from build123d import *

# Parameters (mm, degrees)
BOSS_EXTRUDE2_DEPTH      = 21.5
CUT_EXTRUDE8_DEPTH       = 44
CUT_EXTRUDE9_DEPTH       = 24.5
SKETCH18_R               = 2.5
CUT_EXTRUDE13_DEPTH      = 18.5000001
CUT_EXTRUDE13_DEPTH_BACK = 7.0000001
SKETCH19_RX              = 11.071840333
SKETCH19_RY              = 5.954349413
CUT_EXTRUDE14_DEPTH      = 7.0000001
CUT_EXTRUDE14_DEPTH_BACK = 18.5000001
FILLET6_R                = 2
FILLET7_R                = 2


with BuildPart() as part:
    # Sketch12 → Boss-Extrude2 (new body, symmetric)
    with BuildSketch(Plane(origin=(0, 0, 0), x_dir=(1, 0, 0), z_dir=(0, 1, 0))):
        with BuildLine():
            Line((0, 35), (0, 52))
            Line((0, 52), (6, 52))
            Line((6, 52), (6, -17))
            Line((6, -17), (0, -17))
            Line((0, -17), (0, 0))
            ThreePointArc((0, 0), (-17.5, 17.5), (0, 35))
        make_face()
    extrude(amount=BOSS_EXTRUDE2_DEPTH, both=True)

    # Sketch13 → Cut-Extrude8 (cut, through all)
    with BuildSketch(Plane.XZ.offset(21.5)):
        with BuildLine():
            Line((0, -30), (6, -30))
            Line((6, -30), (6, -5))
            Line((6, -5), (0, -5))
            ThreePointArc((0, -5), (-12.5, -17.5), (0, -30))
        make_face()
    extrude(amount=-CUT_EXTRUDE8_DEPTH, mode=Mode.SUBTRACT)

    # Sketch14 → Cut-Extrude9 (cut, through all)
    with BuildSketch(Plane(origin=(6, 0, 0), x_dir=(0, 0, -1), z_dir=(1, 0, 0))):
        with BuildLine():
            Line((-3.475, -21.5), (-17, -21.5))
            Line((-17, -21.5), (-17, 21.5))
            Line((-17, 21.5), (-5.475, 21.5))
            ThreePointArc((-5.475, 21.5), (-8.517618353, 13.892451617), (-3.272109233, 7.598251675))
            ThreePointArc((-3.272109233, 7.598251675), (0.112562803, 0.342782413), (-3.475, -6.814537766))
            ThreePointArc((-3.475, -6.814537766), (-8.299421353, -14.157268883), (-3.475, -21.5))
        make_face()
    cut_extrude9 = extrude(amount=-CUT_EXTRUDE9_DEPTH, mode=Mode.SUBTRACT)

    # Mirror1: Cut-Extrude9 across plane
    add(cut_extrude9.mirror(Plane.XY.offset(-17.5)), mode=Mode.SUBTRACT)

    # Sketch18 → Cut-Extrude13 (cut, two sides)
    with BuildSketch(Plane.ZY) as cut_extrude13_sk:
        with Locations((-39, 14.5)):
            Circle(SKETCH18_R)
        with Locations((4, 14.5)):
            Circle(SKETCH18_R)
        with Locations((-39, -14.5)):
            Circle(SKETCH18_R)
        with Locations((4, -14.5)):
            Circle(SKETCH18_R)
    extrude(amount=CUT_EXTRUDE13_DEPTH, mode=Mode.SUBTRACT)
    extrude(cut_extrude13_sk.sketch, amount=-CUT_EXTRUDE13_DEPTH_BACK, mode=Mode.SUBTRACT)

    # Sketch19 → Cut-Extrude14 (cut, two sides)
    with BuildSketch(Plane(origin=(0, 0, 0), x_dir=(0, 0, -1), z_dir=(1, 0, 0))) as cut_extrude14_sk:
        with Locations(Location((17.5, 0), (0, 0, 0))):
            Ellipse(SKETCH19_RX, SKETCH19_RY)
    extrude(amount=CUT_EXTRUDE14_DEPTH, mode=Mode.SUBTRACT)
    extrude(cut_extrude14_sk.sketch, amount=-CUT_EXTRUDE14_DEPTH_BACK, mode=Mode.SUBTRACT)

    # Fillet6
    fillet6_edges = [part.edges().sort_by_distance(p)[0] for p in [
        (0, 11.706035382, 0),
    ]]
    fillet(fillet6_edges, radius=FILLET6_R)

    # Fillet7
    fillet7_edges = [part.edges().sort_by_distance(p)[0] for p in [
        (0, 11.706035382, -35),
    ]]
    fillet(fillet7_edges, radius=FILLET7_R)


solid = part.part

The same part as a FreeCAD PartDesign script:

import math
import FreeCAD as App
import Part
import Sketcher
Q = App.Units.Quantity


def edges_at(feature, points):
    """Names of the edges that pass closest to the given points."""
    edges = feature.Shape.Edges
    near = lambda p: min(range(len(edges)), key=lambda i: edges[i].distToShape(Part.Vertex(*p))[0])
    return sorted({f"Edge{near(p) + 1}" for p in points})

doc = App.newDocument("Part")
body = doc.addObject("PartDesign::Body", "Body")

sketch1 = doc.addObject("Sketcher::SketchObject", "Sketch")
body.addObject(sketch1)
sketch1.AttachmentSupport = (doc.XZ_Plane, [""])
sketch1.MapMode = "FlatFace"
sketch1.addGeometry([
    Part.LineSegment(App.Vector(0, -52, 0), App.Vector(0, -35, 0)),
    Part.ArcOfCircle(Part.Circle(App.Vector(0, -18, 0), App.Vector(0, 0, 1), 18), math.radians(90), math.radians(270)),
    Part.LineSegment(App.Vector(0, 0, 0), App.Vector(0, 17, 0)),
    Part.LineSegment(App.Vector(0, 17, 0), App.Vector(6, 17, 0)),
    Part.LineSegment(App.Vector(6, 17, 0), App.Vector(6, -52, 0)),
    Part.LineSegment(App.Vector(6, -52, 0), App.Vector(0, -52, 0)),
], False)
sketch1.addConstraint([
    Sketcher.Constraint("Coincident", 0, 2, 1, 2),
    Sketcher.Constraint("Coincident", 1, 1, 2, 1),
    Sketcher.Constraint("Coincident", 2, 2, 3, 1),
    Sketcher.Constraint("Coincident", 3, 2, 4, 1),
    Sketcher.Constraint("Coincident", 4, 2, 5, 1),
    Sketcher.Constraint("Coincident", 5, 2, 0, 1),
    Sketcher.Constraint("Vertical", 0),
    Sketcher.Constraint("Vertical", 2),
    Sketcher.Constraint("Horizontal", 3),
    Sketcher.Constraint("Vertical", 4),
    Sketcher.Constraint("Horizontal", 5),
    Sketcher.Constraint("Coincident", 1, 1, -1, 1),
    Sketcher.Constraint("PointOnObject", 1, 3, -2),
    Sketcher.Constraint("PointOnObject", 0, 2, -2),
    Sketcher.Constraint("Equal", 0, 2),
    Sketcher.Constraint("Radius", 1, Q("17.5 mm")),
    Sketcher.Constraint("DistanceX", 3, 1, 3, 2, Q("6 mm")),
    Sketcher.Constraint("DistanceY", 0, 1, 0, 2, Q("17 mm")),
])
pad1 = doc.addObject("PartDesign::Pad", "Pad")
body.addObject(pad1)
pad1.Profile = sketch1
pad1.Length = 43
pad1.Midplane = True

sketch2 = doc.addObject("Sketcher::SketchObject", "Sketch001")
body.addObject(sketch2)
sketch2.AttachmentSupport = (doc.XZ_Plane, [""])
sketch2.MapMode = "FlatFace"
sketch2.AttachmentOffset = App.Placement(App.Vector(0, 0, 21.5), App.Rotation())
sketch2.addGeometry([
    Part.LineSegment(App.Vector(0, -30, 0), App.Vector(6, -30, 0)),
    Part.LineSegment(App.Vector(6, -30, 0), App.Vector(6, -5, 0)),
    Part.LineSegment(App.Vector(6, -5, 0), App.Vector(0, -5, 0)),
    Part.ArcOfCircle(Part.Circle(App.Vector(0, -18, 0), App.Vector(0, 0, 1), 12), math.radians(90), math.radians(270)),
], False)
sketch2.addConstraint([
    Sketcher.Constraint("Coincident", 0, 2, 1, 1),
    Sketcher.Constraint("Coincident", 1, 2, 2, 1),
    Sketcher.Constraint("Tangent", 2, 2, 3, 1),
    Sketcher.Constraint("Tangent", 3, 2, 0, 1),
    Sketcher.Constraint("Horizontal", 0),
    Sketcher.Constraint("Vertical", 1),
    Sketcher.Constraint("Horizontal", 2),
    Sketcher.Constraint("PointOnObject", 3, 3, -2),
    Sketcher.Constraint("Radius", 3, Q("12.5 mm")),
    Sketcher.Constraint("DistanceX", 0, 1, 0, 2, Q("6 mm")),
    Sketcher.Constraint("DistanceY", 0, 2, -1, 1, Q("30 mm")),
])
pocket1 = doc.addObject("PartDesign::Pocket", "Pocket")
body.addObject(pocket1)
pocket1.Profile = sketch2
pocket1.Type = "ThroughAll"

sketch3 = doc.addObject("Sketcher::SketchObject", "Sketch002")
body.addObject(sketch3)
sketch3.AttachmentSupport = (doc.YZ_Plane, [""])
sketch3.MapMode = "FlatFace"
sketch3.AttachmentOffset = App.Placement(App.Vector(0, 0, 6), App.Rotation())
sketch3.addGeometry([
    Part.LineSegment(App.Vector(-22, 17, 0), App.Vector(-22, 3, 0)),
    Part.ArcOfCircle(Part.Circle(App.Vector(-14, 0, 0), App.Vector(0, 0, 1), 8), math.radians(23), math.radians(157)),
    Part.ArcOfCircle(Part.Circle(App.Vector(0, 9, 0), App.Vector(0, 0, 1), 9), math.radians(-142), math.radians(-39)),
    Part.ArcOfCircle(Part.Circle(App.Vector(15, 1, 0), App.Vector(0, 0, 1), 8), math.radians(37), math.radians(161)),
    Part.LineSegment(App.Vector(22, 5, 0), App.Vector(22, 17, 0)),
    Part.LineSegment(App.Vector(22, 17, 0), App.Vector(-22, 17, 0)),
], False)
sketch3.addConstraint([
    Sketcher.Constraint("Coincident", 0, 2, 1, 2),
    Sketcher.Constraint("Coincident", 1, 1, 2, 1),
    Sketcher.Constraint("Coincident", 2, 2, 3, 2),
    Sketcher.Constraint("Coincident", 3, 1, 4, 1),
    Sketcher.Constraint("Coincident", 4, 2, 5, 1),
    Sketcher.Constraint("Coincident", 5, 2, 0, 1),
    Sketcher.Constraint("Vertical", 0),
    Sketcher.Constraint("Vertical", 4),
    Sketcher.Constraint("Horizontal", 5),
    Sketcher.Constraint("Equal", 1, 3),
    Sketcher.Constraint("Horizontal", 0, 2, 1, 1),
    Sketcher.Constraint("Radius", 1, Q("8 mm")),
    Sketcher.Constraint("DistanceX", 5, 2, 5, 1, Q("43 mm")),
    Sketcher.Constraint("DistanceY", -1, 1, 4, 2, Q("17 mm")),
    Sketcher.Constraint("DistanceY", 1, 1, 3, 1, Q("2 mm")),
    Sketcher.Constraint("DistanceX", 0, 2, -1, 1, Q("21.5 mm")),
    Sketcher.Constraint("DistanceY", 0, 2, 0, 1, Q("13.525 mm")),
    Sketcher.Constraint("Radius", 2, Q("9.192388 mm")),
    Sketcher.Constraint("DistanceX", 1, 3, -1, 1, Q("14.157269 mm")),
    Sketcher.Constraint("DistanceX", -1, 1, 3, 3, Q("15.144521 mm")),
    Sketcher.Constraint("DistanceX", -1, 1, 2, 2, Q("7.598252 mm")),
])
pocket2 = doc.addObject("PartDesign::Pocket", "Pocket001")
body.addObject(pocket2)
pocket2.Profile = sketch3
pocket2.Type = "ThroughAll"
doc.recompute()

datumplane = doc.addObject("PartDesign::Plane", "DatumPlane")
body.addObject(datumplane)
datumplane.AttachmentSupport = (doc.XY_Plane, [""])
datumplane.MapMode = "FlatFace"
datumplane.AttachmentOffset = App.Placement(App.Vector(0, 0, -17.5), App.Rotation())
mirrored = doc.addObject("PartDesign::Mirrored", "Mirrored")
body.addObject(mirrored)
mirrored.Originals = [pocket2]
mirrored.MirrorPlane = (datumplane, [""])
body.Tip = mirrored

sketch4 = doc.addObject("Sketcher::SketchObject", "Sketch003")
body.addObject(sketch4)
sketch4.AttachmentSupport = (doc.YZ_Plane, [""])
sketch4.MapMode = "FlatFace"
sketch4.addGeometry([
    Part.Circle(App.Vector(14.5, -39, 0), App.Vector(0, 0, 1), 2.5),
    Part.Circle(App.Vector(14.5, 4, 0), App.Vector(0, 0, 1), 2.5),
    Part.Circle(App.Vector(-14.5, -39, 0), App.Vector(0, 0, 1), 2.5),
    Part.Circle(App.Vector(-14.5, 4, 0), App.Vector(0, 0, 1), 2.5),
], False)
sketch4.addConstraint([
    Sketcher.Constraint("Equal", 0, 1),
    Sketcher.Constraint("Equal", 1, 2),
    Sketcher.Constraint("Equal", 2, 3),
    Sketcher.Constraint("Symmetric", 0, 3, 2, 3, -2),
    Sketcher.Constraint("Symmetric", 1, 3, 3, 3, -2),
    Sketcher.Constraint("Vertical", 0, 3, 1, 3),
    Sketcher.Constraint("Diameter", 0, Q("5 mm")),
    Sketcher.Constraint("DistanceY", 0, 3, -1, 1, Q("39 mm")),
    Sketcher.Constraint("DistanceY", -1, 1, 1, 3, Q("4 mm")),
    Sketcher.Constraint("DistanceX", 2, 3, 0, 3, Q("29 mm")),
])
pocket3 = doc.addObject("PartDesign::Pocket", "Pocket002")
body.addObject(pocket3)
pocket3.Profile = sketch4
pocket3.Type = "ThroughAll"
pocket3.Midplane = True

sketch5 = doc.addObject("Sketcher::SketchObject", "Sketch004")
body.addObject(sketch5)
sketch5.AttachmentSupport = (doc.YZ_Plane, [""])
sketch5.MapMode = "FlatFace"
sketch5.addGeometry(Part.Ellipse(App.Vector(0, -28.57184, 0), App.Vector(5.954349, -17.5, 0), App.Vector(0, -17.5, 0)), False)
sketch5.addConstraint(Sketcher.Constraint("Block", 0))
pocket4 = doc.addObject("PartDesign::Pocket", "Pocket003")
body.addObject(pocket4)
pocket4.Profile = sketch5
pocket4.Type = "ThroughAll"
pocket4.Midplane = True
doc.recompute()

fillet = doc.addObject("PartDesign::Fillet", "Fillet")
body.addObject(fillet)
fillet.Base = (pocket4, edges_at(pocket4, [(0, 11.706, 0)]))
fillet.Radius = 2
doc.recompute()

fillet2 = doc.addObject("PartDesign::Fillet", "Fillet001")
body.addObject(fillet2)
fillet2.Base = (fillet, edges_at(fillet, [(0, 11.706, -35)]))
fillet2.Radius = 2

doc.recompute()
